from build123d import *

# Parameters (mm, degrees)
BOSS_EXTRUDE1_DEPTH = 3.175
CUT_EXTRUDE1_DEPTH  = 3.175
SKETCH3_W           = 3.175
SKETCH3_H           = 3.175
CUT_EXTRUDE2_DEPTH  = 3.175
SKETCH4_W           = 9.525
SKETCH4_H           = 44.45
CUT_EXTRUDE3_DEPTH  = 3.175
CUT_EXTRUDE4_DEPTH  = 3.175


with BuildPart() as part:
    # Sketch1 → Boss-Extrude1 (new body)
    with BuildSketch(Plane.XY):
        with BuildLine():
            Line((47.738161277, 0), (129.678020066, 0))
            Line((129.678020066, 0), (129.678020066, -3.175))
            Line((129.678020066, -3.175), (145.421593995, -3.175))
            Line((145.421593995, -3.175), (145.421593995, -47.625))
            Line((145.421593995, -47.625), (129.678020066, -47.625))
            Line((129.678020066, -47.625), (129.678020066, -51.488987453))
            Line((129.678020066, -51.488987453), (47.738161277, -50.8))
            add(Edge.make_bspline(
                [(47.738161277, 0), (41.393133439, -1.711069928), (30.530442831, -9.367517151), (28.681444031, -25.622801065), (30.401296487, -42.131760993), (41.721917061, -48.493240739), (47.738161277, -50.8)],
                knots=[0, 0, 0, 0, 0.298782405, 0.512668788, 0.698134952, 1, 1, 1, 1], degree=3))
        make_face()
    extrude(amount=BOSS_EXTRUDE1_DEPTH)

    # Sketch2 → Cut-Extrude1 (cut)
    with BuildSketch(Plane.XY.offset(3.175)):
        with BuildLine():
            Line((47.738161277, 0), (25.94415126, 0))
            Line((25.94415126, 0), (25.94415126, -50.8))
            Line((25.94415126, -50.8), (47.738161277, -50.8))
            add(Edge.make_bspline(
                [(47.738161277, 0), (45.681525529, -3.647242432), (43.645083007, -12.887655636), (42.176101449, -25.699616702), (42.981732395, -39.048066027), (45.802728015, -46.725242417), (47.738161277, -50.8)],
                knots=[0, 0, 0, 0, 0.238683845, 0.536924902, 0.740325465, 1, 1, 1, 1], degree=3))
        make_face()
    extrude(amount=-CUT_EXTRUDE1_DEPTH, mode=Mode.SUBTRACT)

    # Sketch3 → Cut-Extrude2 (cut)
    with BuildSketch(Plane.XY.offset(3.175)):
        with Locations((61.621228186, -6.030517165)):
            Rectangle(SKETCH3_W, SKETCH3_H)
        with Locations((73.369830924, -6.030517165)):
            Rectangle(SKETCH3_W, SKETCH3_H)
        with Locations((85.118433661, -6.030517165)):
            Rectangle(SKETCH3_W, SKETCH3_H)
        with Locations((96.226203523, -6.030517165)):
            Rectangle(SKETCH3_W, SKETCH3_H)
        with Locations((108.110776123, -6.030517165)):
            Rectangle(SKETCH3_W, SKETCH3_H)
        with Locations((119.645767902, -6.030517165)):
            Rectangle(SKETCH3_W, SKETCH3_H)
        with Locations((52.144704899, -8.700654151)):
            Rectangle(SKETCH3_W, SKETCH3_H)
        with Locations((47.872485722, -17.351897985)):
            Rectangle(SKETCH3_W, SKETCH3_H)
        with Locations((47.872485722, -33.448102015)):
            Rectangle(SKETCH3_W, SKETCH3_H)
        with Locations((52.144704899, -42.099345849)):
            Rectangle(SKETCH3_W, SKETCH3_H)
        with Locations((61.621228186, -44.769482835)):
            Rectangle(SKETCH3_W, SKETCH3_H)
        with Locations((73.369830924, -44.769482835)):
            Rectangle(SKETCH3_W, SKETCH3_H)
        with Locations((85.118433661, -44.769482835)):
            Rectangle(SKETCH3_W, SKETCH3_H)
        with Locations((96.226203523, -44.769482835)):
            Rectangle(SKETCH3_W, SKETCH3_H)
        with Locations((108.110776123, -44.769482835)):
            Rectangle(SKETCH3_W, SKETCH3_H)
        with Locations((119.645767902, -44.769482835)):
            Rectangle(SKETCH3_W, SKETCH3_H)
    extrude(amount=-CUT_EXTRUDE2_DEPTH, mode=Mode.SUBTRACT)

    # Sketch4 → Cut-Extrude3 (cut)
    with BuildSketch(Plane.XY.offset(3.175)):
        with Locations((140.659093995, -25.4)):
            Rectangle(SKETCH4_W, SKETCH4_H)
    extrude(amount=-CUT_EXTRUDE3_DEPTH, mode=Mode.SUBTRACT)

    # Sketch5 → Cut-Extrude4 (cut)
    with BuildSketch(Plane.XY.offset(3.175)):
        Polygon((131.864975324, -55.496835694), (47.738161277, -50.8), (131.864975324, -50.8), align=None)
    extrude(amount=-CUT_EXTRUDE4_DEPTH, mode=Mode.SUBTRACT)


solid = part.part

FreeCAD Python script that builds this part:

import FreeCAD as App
import Part
import Sketcher

V = App.Vector
Q = App.Units.Quantity


def add_polygon(sketch, points):
    """Adds a closed chain of lines whose ends are joined by coincident constraints."""
    first, n = sketch.GeometryCount, len(points)
    for a, b in zip(points, points[1:] + points[:1]):
        sketch.addGeometry(Part.LineSegment(App.Vector(*a, 0), App.Vector(*b, 0)), False)
    for i in range(n):
        sketch.addConstraint(Sketcher.Constraint("Coincident", first + i, 2, first + (i + 1) % n, 1))

doc = App.newDocument("Part")
body = doc.addObject("PartDesign::Body", "Body")

# Sketch on XY plane
sketch1 = body.newObject("Sketcher::SketchObject", "Sketch")
sketch1.AttachmentSupport = (doc.getObject("XY_Plane"), [""])
sketch1.MapMode = "FlatFace"
sketch1.addGeometry([
    Part.LineSegment(V(129.67802, 0, 0), V(47.738161, 0, 0)),  # 0
    Part.BSplineCurve([V(47.738161, 0, 0), V(41.393133, -1.71107, 0), V(30.530443, -9.367517, 0), V(28.681444, -25.622801, 0), V(30.401296, -42.131761, 0), V(41.721917, -48.493241, 0), V(47.738161, -50.8, 0)], [4, 1, 1, 1, 4], [0, 0.298782405, 0.512668788, 0.698134952, 1], False, 3, [1, 1, 1, 1, 1, 1, 1], False),  # 1
    Part.LineSegment(V(47.738161, -50.8, 0), V(129.67802, -51.488987, 0)),  # 2
    Part.LineSegment(V(129.67802, -51.488987, 0), V(129.67802, -47.625, 0)),  # 3
    Part.LineSegment(V(129.67802, -47.625, 0), V(145.421594, -47.625, 0)),  # 4
    Part.LineSegment(V(145.421594, -47.625, 0), V(145.421594, -3.175, 0)),  # 5
    Part.LineSegment(V(145.421594, -3.175, 0), V(129.67802, -3.175, 0)),  # 6
    Part.LineSegment(V(129.67802, -3.175, 0), V(129.67802, 0, 0)),  # 7
], False)
sketch1.addConstraint([
    Sketcher.Constraint("Block", 1),
    Sketcher.Constraint("Coincident", 0, 2, 1, 1),
    Sketcher.Constraint("Coincident", 1, 2, 2, 1),
    Sketcher.Constraint("Coincident", 2, 2, 3, 1),
    Sketcher.Constraint("Coincident", 3, 2, 4, 1),
    Sketcher.Constraint("Coincident", 4, 2, 5, 1),
    Sketcher.Constraint("Coincident", 5, 2, 6, 1),
    Sketcher.Constraint("Coincident", 6, 2, 7, 1),
    Sketcher.Constraint("Coincident", 7, 2, 0, 1),
    Sketcher.Constraint("Horizontal", 0),
    Sketcher.Constraint("Vertical", 3),
    Sketcher.Constraint("Horizontal", 4),
    Sketcher.Constraint("Vertical", 5),
    Sketcher.Constraint("Horizontal", 6),
    Sketcher.Constraint("Vertical", 7),
    Sketcher.Constraint("Vertical", 3, 2, 6, 2),
    Sketcher.Constraint("DistanceY", 5, 1, 5, 2, Q("1.75 in")),
    Sketcher.Constraint("DistanceY", 7, 1, 7, 2, Q("0.125 in")),
    Sketcher.Constraint("DistanceX", 0, 2, 0, 1, Q("81.939859 mm")),
    Sketcher.Constraint("DistanceX", 4, 1, 4, 2, Q("15.743574 mm")),
    Sketcher.Constraint("DistanceY", 3, 1, 3, 2, Q("3.863987 mm")),
])
pad1 = body.newObject("PartDesign::Pad", "Pad")
pad1.Profile = sketch1
pad1.Length = Q("0.125 in")

# Sketch on XY plane
sketch2 = body.newObject("Sketcher::SketchObject", "Sketch001")
sketch2.AttachmentSupport = (doc.getObject("XY_Plane"), [""])
sketch2.MapMode = "FlatFace"
sketch2.AttachmentOffset = App.Placement(V(0, 0, 0.125 * 25.4), App.Rotation())
sketch2.addGeometry([
    Part.LineSegment(V(47.738161, 0, 0), V(25.944151, 0, 0)),
    Part.LineSegment(V(25.944151, 0, 0), V(25.944151, -50.8, 0)),
    Part.LineSegment(V(25.944151, -50.8, 0), V(47.738161, -50.8, 0)),
    Part.BSplineCurve([V(47.738161, 0, 0), V(45.681526, -3.647242, 0), V(43.645083, -12.887656, 0), V(42.176101, -25.699617, 0), V(42.981732, -39.048066, 0), V(45.802728, -46.725242, 0), V(47.738161, -50.8, 0)], [4, 1, 1, 1, 4], [0, 0.238683845, 0.536924902, 0.740325465, 1], False, 3, [1, 1, 1, 1, 1, 1, 1], False),
], False)
sketch2.addConstraint([
    Sketcher.Constraint("Block", 3),
    Sketcher.Constraint("Coincident", 0, 2, 1, 1),
    Sketcher.Constraint("Coincident", 1, 2, 2, 1),
    Sketcher.Constraint("Coincident", 2, 2, 3, 2),
    Sketcher.Constraint("Coincident", 3, 1, 0, 1),
    Sketcher.Constraint("Horizontal", 0),
    Sketcher.Constraint("Vertical", 1),
    Sketcher.Constraint("Horizontal", 2),
    Sketcher.Constraint("DistanceX", 0, 2, 0, 1, Q("21.79401 mm")),
])
pocket1 = body.newObject("PartDesign::Pocket", "Pocket")
pocket1.Profile = sketch2
pocket1.Length = Q("0.125 in")

# Sketch on XY plane
sketch3 = body.newObject("Sketcher::SketchObject", "Sketch002")
sketch3.AttachmentSupport = (doc.getObject("XY_Plane"), [""])
sketch3.MapMode = "FlatFace"
sketch3.AttachmentOffset = App.Placement(V(0, 0, 0.125 * 25.4), App.Rotation())
add_polygon(sketch3, [(60, -4.4), (60, -7.6), (63.2, -7.6), (63.2, -4.4)])  # lines 0-3
add_polygon(sketch3, [(71.8, -4.4), (71.8, -7.6), (75, -7.6), (75, -4.4)])  # lines 4-7
add_polygon(sketch3, [(83.5, -4.4), (83.5, -7.6), (86.7, -7.6), (86.7, -4.4)])  # lines 8-11
add_polygon(sketch3, [(94.6, -4.4), (94.6, -7.6), (97.8, -7.6), (97.8, -4.4)])  # lines 12-15
add_polygon(sketch3, [(106.5, -4.4), (106.5, -7.6), (109.7, -7.6), (109.7, -4.4)])  # lines 16-19
add_polygon(sketch3, [(118.1, -4.4), (118.1, -7.6), (121.2, -7.6), (121.2, -4.4)])  # lines 20-23
add_polygon(sketch3, [(50.6, -7.1), (50.6, -10.3), (53.7, -10.3), (53.7, -7.1)])  # lines 24-27
add_polygon(sketch3, [(46.3, -15.8), (46.3, -18.9), (49.5, -18.9), (49.5, -15.8)])  # lines 28-31
add_polygon(sketch3, [(46.3, -31.9), (46.3, -35), (49.5, -35), (49.5, -31.9)])  # lines 32-35
add_polygon(sketch3, [(50.6, -40.5), (50.6, -43.7), (53.7, -43.7), (53.7, -40.5)])  # lines 36-39
add_polygon(sketch3, [(60, -43.2), (60, -46.4), (63.2, -46.4), (63.2, -43.2)])  # lines 40-43
add_polygon(sketch3, [(71.8, -43.2), (71.8, -46.4), (75, -46.4), (75, -43.2)])  # lines 44-47
add_polygon(sketch3, [(83.5, -43.2), (83.5, -46.4), (86.7, -46.4), (86.7, -43.2)])  # lines 48-51
add_polygon(sketch3, [(94.6, -43.2), (94.6, -46.4), (97.8, -46.4), (97.8, -43.2)])  # lines 52-55
add_polygon(sketch3, [(106.5, -43.2), (106.5, -46.4), (109.7, -46.4), (109.7, -43.2)])  # lines 56-59
add_polygon(sketch3, [(118.1, -43.2), (118.1, -46.4), (121.2, -46.4), (121.2, -43.2)])  # lines 60-63
sketch3.addConstraint([
    Sketcher.Constraint("Vertical", 0),
    Sketcher.Constraint("Horizontal", 1),
    Sketcher.Constraint("Vertical", 2),
    Sketcher.Constraint("Horizontal", 3),
    Sketcher.Constraint("Vertical", 4),
    Sketcher.Constraint("Horizontal", 5),
    Sketcher.Constraint("Vertical", 6),
    Sketcher.Constraint("Horizontal", 7),
    Sketcher.Constraint("Vertical", 8),
    Sketcher.Constraint("Horizontal", 9),
    Sketcher.Constraint("Vertical", 10),
    Sketcher.Constraint("Horizontal", 11),
    Sketcher.Constraint("Vertical", 12),
    Sketcher.Constraint("Horizontal", 13),
    Sketcher.Constraint("Vertical", 14),
    Sketcher.Constraint("Horizontal", 15),
    Sketcher.Constraint("Vertical", 16),
    Sketcher.Constraint("Horizontal", 17),
    Sketcher.Constraint("Vertical", 18),
    Sketcher.Constraint("Horizontal", 19),
    Sketcher.Constraint("Vertical", 20),
    Sketcher.Constraint("Horizontal", 21),
    Sketcher.Constraint("Vertical", 22),
    Sketcher.Constraint("Horizontal", 23),
    Sketcher.Constraint("Vertical", 24),
    Sketcher.Constraint("Horizontal", 25),
    Sketcher.Constraint("Vertical", 26),
    Sketcher.Constraint("Horizontal", 27),
    Sketcher.Constraint("Vertical", 28),
    Sketcher.Constraint("Horizontal", 29),
    Sketcher.Constraint("Vertical", 30),
    Sketcher.Constraint("Horizontal", 31),
    Sketcher.Constraint("Vertical", 32),
    Sketcher.Constraint("Horizontal", 33),
    Sketcher.Constraint("Vertical", 34),
    Sketcher.Constraint("Horizontal", 35),
    Sketcher.Constraint("Vertical", 36),
    Sketcher.Constraint("Horizontal", 37),
    Sketcher.Constraint("Vertical", 38),
    Sketcher.Constraint("Horizontal", 39),
    Sketcher.Constraint("Vertical", 40),
    Sketcher.Constraint("Horizontal", 41),
    Sketcher.Constraint("Vertical", 42),
    Sketcher.Constraint("Horizontal", 43),
    Sketcher.Constraint("Vertical", 44),
    Sketcher.Constraint("Horizontal", 45),
    Sketcher.Constraint("Vertical", 46),
    Sketcher.Constraint("Horizontal", 47),
    Sketcher.Constraint("Vertical", 48),
    Sketcher.Constraint("Horizontal", 49),
    Sketcher.Constraint("Vertical", 50),
    Sketcher.Constraint("Horizontal", 51),
    Sketcher.Constraint("Vertical", 52),
    Sketcher.Constraint("Horizontal", 53),
    Sketcher.Constraint("Vertical", 54),
    Sketcher.Constraint("Horizontal", 55),
    Sketcher.Constraint("Vertical", 56),
    Sketcher.Constraint("Horizontal", 57),
    Sketcher.Constraint("Vertical", 58),
    Sketcher.Constraint("Horizontal", 59),
    Sketcher.Constraint("Vertical", 60),
    Sketcher.Constraint("Horizontal", 61),
    Sketcher.Constraint("Vertical", 62),
    Sketcher.Constraint("Horizontal", 63),
    Sketcher.Constraint("Horizontal", 1, 2, 4, 2),
    Sketcher.Constraint("Horizontal", 3, 2, 6, 2),
    Sketcher.Constraint("Horizontal", 5, 2, 8, 2),
    Sketcher.Constraint("Horizontal", 7, 2, 10, 2),
    Sketcher.Constraint("Horizontal", 9, 2, 12, 2),
    Sketcher.Constraint("Horizontal", 11, 2, 14, 2),
    Sketcher.Constraint("Horizontal", 13, 2, 16, 2),
    Sketcher.Constraint("Horizontal", 15, 2, 18, 2),
    Sketcher.Constraint("Horizontal", 17, 2, 20, 2),
    Sketcher.Constraint("Horizontal", 19, 2, 22, 2),
    Sketcher.Constraint("Horizontal", 41, 2, 44, 2),
    Sketcher.Constraint("Horizontal", 43, 2, 46, 2),
    Sketcher.Constraint("Horizontal", 45, 2, 48, 2),
    Sketcher.Constraint("Horizontal", 47, 2, 50, 2),
    Sketcher.Constraint("Horizontal", 49, 2, 52, 2),
    Sketcher.Constraint("Horizontal", 51, 2, 54, 2),
    Sketcher.Constraint("Horizontal", 53, 2, 56, 2),
    Sketcher.Constraint("Horizontal", 55, 2, 58, 2),
    Sketcher.Constraint("Horizontal", 57, 2, 60, 2),
    Sketcher.Constraint("Horizontal", 59, 2, 62, 2),
    Sketcher.Constraint("Vertical", 31, 2, 32, 2),
    Sketcher.Constraint("Vertical", 30, 2, 33, 2),
    Sketcher.Constraint("Vertical", 27, 2, 36, 2),
    Sketcher.Constraint("Vertical", 26, 2, 37, 2),
    Sketcher.Constraint("Vertical", 3, 2, 40, 2),
    Sketcher.Constraint("Vertical", 2, 2, 41, 2),
    Sketcher.Constraint("Vertical", 7, 2, 44, 2),
    Sketcher.Constraint("Vertical", 6, 2, 45, 2),
    Sketcher.Constraint("Vertical", 11, 2, 48, 2),
    Sketcher.Constraint("Vertical", 10, 2, 49, 2),
    Sketcher.Constraint("Vertical", 15, 2, 52, 2),
    Sketcher.Constraint("Vertical", 14, 2, 53, 2),
    Sketcher.Constraint("Vertical", 19, 2, 56, 2),
    Sketcher.Constraint("Vertical", 18, 2, 57, 2),
    Sketcher.Constraint("Vertical", 23, 2, 60, 2),
    Sketcher.Constraint("Vertical", 22, 2, 61, 2),
    Sketcher.Constraint("Equal", 3, 5),
    Sketcher.Constraint("Equal", 7, 9),
    Sketcher.Constraint("Equal", 11, 13),
    Sketcher.Constraint("Equal", 15, 17),
    Sketcher.Constraint("Equal", 19, 21),
    Sketcher.Constraint("Equal", 23, 25),
    Sketcher.Constraint("Equal", 27, 29),
    Sketcher.Constraint("Equal", 63, 0),
    Sketcher.Constraint("Equal", 22, 24),
    Sketcher.Constraint("Equal", 26, 28),
    Sketcher.Constraint("Equal", 30, 32),
    Sketcher.Constraint("Equal", 34, 36),
    Sketcher.Constraint("Equal", 38, 40),
    Sketcher.Constraint("DistanceX", 1, 1, 1, 2, Q("0.125 in")),
    Sketcher.Constraint("DistanceX", -1, 1, 0, 2, Q("60.033728 mm")),
    Sketcher.Constraint("DistanceX", -1, 1, 4, 2, Q("71.782331 mm")),
    Sketcher.Constraint("DistanceY", 0, 2, -1, 1, Q("7.618017 mm")),
    Sketcher.Constraint("DistanceX", -1, 1, 8, 2, Q("83.530934 mm")),
    Sketcher.Constraint("DistanceX", -1, 1, 12, 2, Q("94.638704 mm")),
    Sketcher.Constraint("DistanceX", -1, 1, 16, 2, Q("106.523276 mm")),
    Sketcher.Constraint("DistanceX", -1, 1, 20, 2, Q("118.058268 mm")),
    Sketcher.Constraint("DistanceX", -1, 1, 24, 2, Q("50.557205 mm")),
    Sketcher.Constraint("DistanceY", 24, 2, -1, 1, Q("10.288154 mm")),
    Sketcher.Constraint("DistanceX", -1, 1, 28, 2, Q("46.284986 mm")),
    Sketcher.Constraint("DistanceY", 28, 2, -1, 1, Q("18.939398 mm")),
    Sketcher.Constraint("DistanceY", 32, 2, -1, 1, Q("35.035602 mm")),
    Sketcher.Constraint("DistanceY", 36, 2, -1, 1, Q("43.686846 mm")),
    Sketcher.Constraint("DistanceY", 40, 2, -1, 1, Q("46.356983 mm")),
])
pocket2 = body.newObject("PartDesign::Pocket", "Pocket001")
pocket2.Profile = sketch3
pocket2.Length = Q("0.125 in")

# Sketch on XY plane
sketch4 = body.newObject("Sketcher::SketchObject", "Sketch003")
sketch4.AttachmentSupport = (doc.getObject("XY_Plane"), [""])
sketch4.MapMode = "FlatFace"
sketch4.AttachmentOffset = App.Placement(V(0, 0, 0.125 * 25.4), App.Rotation())
add_polygon(sketch4, [(136, -3), (136, -48), (145, -48), (145, -3)])  # lines 0-3
sketch4.addConstraint([
    Sketcher.Constraint("Vertical", 0),
    Sketcher.Constraint("Horizontal", 1),
    Sketcher.Constraint("Vertical", 2),
    Sketcher.Constraint("Horizontal", 3),
    Sketcher.Constraint("DistanceY", 0, 2, 0, 1, Q("1.75 in")),
    Sketcher.Constraint("DistanceX", 1, 1, 1, 2, Q("0.375 in")),
    Sketcher.Constraint("DistanceY", 0, 2, -1, 1, Q("1.875 in")),
    Sketcher.Constraint("DistanceX", -1, 1, 0, 2, Q("135.896594 mm")),
])
pocket3 = body.newObject("PartDesign::Pocket", "Pocket002")
pocket3.Profile = sketch4
pocket3.Length = Q("0.125 in")

# Sketch on XY plane
sketch5 = body.newObject("Sketcher::SketchObject", "Sketch004")
sketch5.AttachmentSupport = (doc.getObject("XY_Plane"), [""])
sketch5.MapMode = "FlatFace"
sketch5.AttachmentOffset = App.Placement(V(0, 0, 0.125 * 25.4), App.Rotation())
add_polygon(sketch5, [(47.7, -50.8), (131.9, -55.5), (131.9, -50.8)])  # lines 0-2
sketch5.addConstraint([
    Sketcher.Constraint("Vertical", 1),
    Sketcher.Constraint("Horizontal", 2),
    Sketcher.Constraint("DistanceY", 1, 2, -1, 1, Q("2 in")),
    Sketcher.Constraint("DistanceX", 2, 2, 2, 1, Q("84.126814 mm")),
    Sketcher.Constraint("DistanceY", 1, 1, 1, 2, Q("4.696836 mm")),
    Sketcher.Constraint("DistanceX", -1, 1, 2, 2, Q("47.738161 mm")),
])
pocket4 = body.newObject("PartDesign::Pocket", "Pocket003")
pocket4.Profile = sketch5
pocket4.Length = Q("0.125 in")

doc.recompute()
